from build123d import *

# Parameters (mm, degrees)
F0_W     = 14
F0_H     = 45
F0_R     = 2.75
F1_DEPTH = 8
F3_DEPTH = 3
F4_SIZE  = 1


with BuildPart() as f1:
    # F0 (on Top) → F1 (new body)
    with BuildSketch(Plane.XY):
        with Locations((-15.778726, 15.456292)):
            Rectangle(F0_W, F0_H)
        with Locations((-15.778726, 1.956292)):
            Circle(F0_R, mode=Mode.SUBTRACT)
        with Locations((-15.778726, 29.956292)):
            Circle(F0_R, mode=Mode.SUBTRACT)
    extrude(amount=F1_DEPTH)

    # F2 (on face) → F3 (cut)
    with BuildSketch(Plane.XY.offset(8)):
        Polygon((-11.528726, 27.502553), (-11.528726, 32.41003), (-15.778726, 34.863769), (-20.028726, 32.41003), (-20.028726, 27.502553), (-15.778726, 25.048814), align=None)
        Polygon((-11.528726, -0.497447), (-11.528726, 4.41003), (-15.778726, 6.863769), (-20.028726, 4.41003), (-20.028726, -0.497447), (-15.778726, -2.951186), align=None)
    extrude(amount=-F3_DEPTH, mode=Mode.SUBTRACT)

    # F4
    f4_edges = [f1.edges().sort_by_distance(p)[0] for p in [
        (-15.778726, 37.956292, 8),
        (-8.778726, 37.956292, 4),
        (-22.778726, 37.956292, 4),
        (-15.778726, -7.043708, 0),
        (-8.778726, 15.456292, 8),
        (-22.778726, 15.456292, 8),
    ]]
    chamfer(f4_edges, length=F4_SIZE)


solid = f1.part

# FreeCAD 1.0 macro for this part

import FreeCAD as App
import Part
import Sketcher
Q = App.Units.Quantity


def edges_at(feature, points):
    """Names of the edges that pass closest to the given points."""
    edges = feature.Shape.Edges
    near = lambda p: min(range(len(edges)), key=lambda i: edges[i].distToShape(Part.Vertex(*p))[0])
    return sorted({f"Edge{near(p) + 1}" for p in points})

doc = App.newDocument("Part")
params = doc.addObject("Spreadsheet::Sheet", "Params")
for row, (alias, value) in enumerate([
    ("sketch1_diameter", "5.5 mm"),
    ("sketch1_width", "14 mm"),
    ("sketch1_height", "45 mm"),
    ("pad1_length", "8 mm"),
    ("pocket1_length", "3 mm"),
    ("chamfer_size", "1 mm"),
], start=1):
    params.set(f"A{row}", alias)
    params.set(f"B{row}", "=" + value)
    params.setAlias(f"B{row}", alias)

body = doc.addObject("PartDesign::Body", "Body")

# Sketch on XY plane
sketch1 = body.newObject("Sketcher::SketchObject", "Sketch")
sketch1.AttachmentSupport = (doc.getObject("XY_Plane"), [""])
sketch1.MapMode = "FlatFace"
sketch1.addGeometry(Part.LineSegment(App.Vector(-22.8, 38, 0), App.Vector(-22.8, -7, 0)), False)
sketch1.addGeometry(Part.LineSegment(App.Vector(-22.8, -7, 0), App.Vector(-8.8, -7, 0)), False)
sketch1.addGeometry(Part.LineSegment(App.Vector(-8.8, -7, 0), App.Vector(-8.8, 38, 0)), False)
sketch1.addGeometry(Part.LineSegment(App.Vector(-8.8, 38, 0), App.Vector(-22.8, 38, 0)), False)
sketch1.addGeometry(Part.Circle(App.Vector(-15.8, 2, 0), App.Vector(0, 0, 1), 2.8), False)
sketch1.addGeometry(Part.Circle(App.Vector(-15.8, 30, 0), App.Vector(0, 0, 1), 2.8), False)
sketch1.addConstraint(Sketcher.Constraint("Coincident", 0, 2, 1, 1))
sketch1.addConstraint(Sketcher.Constraint("Coincident", 1, 2, 2, 1))
sketch1.addConstraint(Sketcher.Constraint("Coincident", 2, 2, 3, 1))
sketch1.addConstraint(Sketcher.Constraint("Coincident", 3, 2, 0, 1))
sketch1.addConstraint(Sketcher.Constraint("Vertical", 0))
sketch1.addConstraint(Sketcher.Constraint("Horizontal", 1))
sketch1.addConstraint(Sketcher.Constraint("Vertical", 2))
sketch1.addConstraint(Sketcher.Constraint("Horizontal", 3))
sketch1.addConstraint(Sketcher.Constraint("Equal", 4, 5))
sketch1.addConstraint(Sketcher.Constraint("Vertical", 4, 3, 5, 3))
sketch1.addConstraint(Sketcher.Constraint("Diameter", 4, Q("5.5 mm")))
sketch1.addConstraint(Sketcher.Constraint("DistanceX", 1, 1, 1, 2, Q("14 mm")))
sketch1.addConstraint(Sketcher.Constraint("DistanceY", 0, 2, 0, 1, Q("45 mm")))
sketch1.addConstraint(Sketcher.Constraint("DistanceY", 4, 3, 5, 3, Q("28 mm")))
sketch1.addConstraint(Sketcher.Constraint("DistanceX", 0, 2, 4, 3, Q("7 mm")))
sketch1.addConstraint(Sketcher.Constraint("DistanceY", 0, 2, 4, 3, Q("9 mm")))
sketch1.addConstraint(Sketcher.Constraint("DistanceY", -1, 1, 4, 3, Q("1.956292 mm")))
sketch1.addConstraint(Sketcher.Constraint("DistanceX", 4, 3, -1, 1, Q("15.778726 mm")))
sketch1.setExpression("Constraints[10]", "Params.sketch1_diameter")
sketch1.setExpression("Constraints[11]", "Params.sketch1_width")
sketch1.setExpression("Constraints[12]", "Params.sketch1_height")
pad1 = body.newObject("PartDesign::Pad", "Pad")
pad1.Profile = sketch1
pad1.setExpression("Length", "Params.pad1_length")

# Sketch on XY plane
sketch2 = body.newObject("Sketcher::SketchObject", "Sketch001")
sketch2.AttachmentSupport = (doc.getObject("XY_Plane"), [""])
sketch2.MapMode = "FlatFace"
sketch2.AttachmentOffset = App.Placement(App.Vector(0, 0, 8), App.Rotation())
sketch2.addGeometry(Part.LineSegment(App.Vector(-11.5, 27.5, 0), App.Vector(-11.5, 32.4, 0)), False)
sketch2.addGeometry(Part.LineSegment(App.Vector(-11.5, 32.4, 0), App.Vector(-15.8, 34.9, 0)), False)
sketch2.addGeometry(Part.LineSegment(App.Vector(-15.8, 34.9, 0), App.Vector(-20, 32.4, 0)), False)
sketch2.addGeometry(Part.LineSegment(App.Vector(-20, 32.4, 0), App.Vector(-20, 27.5, 0)), False)
sketch2.addGeometry(Part.LineSegment(App.Vector(-20, 27.5, 0), App.Vector(-15.8, 25, 0)), False)
sketch2.addGeometry(Part.LineSegment(App.Vector(-15.8, 25, 0), App.Vector(-11.5, 27.5, 0)), False)
sketch2.addGeometry(Part.LineSegment(App.Vector(-11.5, -0.5, 0), App.Vector(-11.5, 4.4, 0)), False)
sketch2.addGeometry(Part.LineSegment(App.Vector(-11.5, 4.4, 0), App.Vector(-15.8, 6.9, 0)), False)
sketch2.addGeometry(Part.LineSegment(App.Vector(-15.8, 6.9, 0), App.Vector(-20, 4.4, 0)), False)
sketch2.addGeometry(Part.LineSegment(App.Vector(-20, 4.4, 0), App.Vector(-20, -0.5, 0)), False)
sketch2.addGeometry(Part.LineSegment(App.Vector(-20, -0.5, 0), App.Vector(-15.8, -3, 0)), False)
sketch2.addGeometry(Part.LineSegment(App.Vector(-15.8, -3, 0), App.Vector(-11.5, -0.5, 0)), False)
sketch2.addConstraint(Sketcher.Constraint("Coincident", 0, 2, 1, 1))
sketch2.addConstraint(Sketcher.Constraint("Coincident", 1, 2, 2, 1))
sketch2.addConstraint(Sketcher.Constraint("Coincident", 2, 2, 3, 1))
sketch2.addConstraint(Sketcher.Constraint("Coincident", 3, 2, 4, 1))
sketch2.addConstraint(Sketcher.Constraint("Coincident", 4, 2, 5, 1))
sketch2.addConstraint(Sketcher.Constraint("Coincident", 5, 2, 0, 1))
sketch2.addConstraint(Sketcher.Constraint("Coincident", 6, 2, 7, 1))
sketch2.addConstraint(Sketcher.Constraint("Coincident", 7, 2, 8, 1))
sketch2.addConstraint(Sketcher.Constraint("Coincident", 8, 2, 9, 1))
sketch2.addConstraint(Sketcher.Constraint("Coincident", 9, 2, 10, 1))
sketch2.addConstraint(Sketcher.Constraint("Coincident", 10, 2, 11, 1))
sketch2.addConstraint(Sketcher.Constraint("Coincident", 11, 2, 6, 1))
sketch2.addConstraint(Sketcher.Constraint("Vertical", 0))
sketch2.addConstraint(Sketcher.Constraint("Vertical", 3))
sketch2.addConstraint(Sketcher.Constraint("Vertical", 6))
sketch2.addConstraint(Sketcher.Constraint("Vertical", 9))
sketch2.addConstraint(Sketcher.Constraint("Parallel", 1, 4))
sketch2.addConstraint(Sketcher.Constraint("Parallel", 2, 5))
sketch2.addConstraint(Sketcher.Constraint("Parallel", 4, 7))
sketch2.addConstraint(Sketcher.Constraint("Parallel", 5, 8))
sketch2.addConstraint(Sketcher.Constraint("Parallel", 7, 10))
sketch2.addConstraint(Sketcher.Constraint("Parallel", 8, 11))
sketch2.addConstraint(Sketcher.Constraint("Horizontal", 0, 2, 2, 2))
sketch2.addConstraint(Sketcher.Constraint("Horizontal", 3, 2, 5, 2))
sketch2.addConstraint(Sketcher.Constraint("Horizontal", 6, 2, 8, 2))
sketch2.addConstraint(Sketcher.Constraint("Horizontal", 9, 2, 11, 2))
sketch2.addConstraint(Sketcher.Constraint("Vertical", 1, 2, 4, 2))
sketch2.addConstraint(Sketcher.Constraint("Vertical", 5, 2, 6, 2))
sketch2.addConstraint(Sketcher.Constraint("Vertical", 4, 2, 7, 2))
sketch2.addConstraint(Sketcher.Constraint("Equal", 3, 6))
sketch2.addConstraint(Sketcher.Constraint("Angle", 1, Q("149.999996 deg")))
sketch2.addConstraint(Sketcher.Constraint("DistanceY", 6, 2, 0, 2, Q("28 mm")))
sketch2.addConstraint(Sketcher.Constraint("DistanceX", 2, 2, 0, 2, Q("8.5 mm")))
sketch2.addConstraint(Sketcher.Constraint("DistanceY", 0, 1, 0, 2, Q("4.907477 mm")))
sketch2.addConstraint(Sketcher.Constraint("DistanceY", -1, 1, 0, 2, Q("32.41003 mm")))
sketch2.addConstraint(Sketcher.Constraint("DistanceX", 0, 2, -1, 1, Q("11.528726 mm")))
pocket1 = body.newObject("PartDesign::Pocket", "Pocket")
pocket1.Profile = sketch2
pocket1.setExpression("Length", "Params.pocket1_length")
doc.recompute()

chamfer = body.newObject("PartDesign::Chamfer", "Chamfer")
chamfer.Base = (pocket1, edges_at(pocket1, [
    (-15.779, 37.956, 8),
    (-8.779, 37.956, 4),
    (-22.779, 37.956, 4),
    (-15.779, -7.044, 0),
    (-8.779, 15.456, 8),
    (-22.779, 15.456, 8),
]))
chamfer.setExpression("Size", "Params.chamfer_size")

doc.recompute()
